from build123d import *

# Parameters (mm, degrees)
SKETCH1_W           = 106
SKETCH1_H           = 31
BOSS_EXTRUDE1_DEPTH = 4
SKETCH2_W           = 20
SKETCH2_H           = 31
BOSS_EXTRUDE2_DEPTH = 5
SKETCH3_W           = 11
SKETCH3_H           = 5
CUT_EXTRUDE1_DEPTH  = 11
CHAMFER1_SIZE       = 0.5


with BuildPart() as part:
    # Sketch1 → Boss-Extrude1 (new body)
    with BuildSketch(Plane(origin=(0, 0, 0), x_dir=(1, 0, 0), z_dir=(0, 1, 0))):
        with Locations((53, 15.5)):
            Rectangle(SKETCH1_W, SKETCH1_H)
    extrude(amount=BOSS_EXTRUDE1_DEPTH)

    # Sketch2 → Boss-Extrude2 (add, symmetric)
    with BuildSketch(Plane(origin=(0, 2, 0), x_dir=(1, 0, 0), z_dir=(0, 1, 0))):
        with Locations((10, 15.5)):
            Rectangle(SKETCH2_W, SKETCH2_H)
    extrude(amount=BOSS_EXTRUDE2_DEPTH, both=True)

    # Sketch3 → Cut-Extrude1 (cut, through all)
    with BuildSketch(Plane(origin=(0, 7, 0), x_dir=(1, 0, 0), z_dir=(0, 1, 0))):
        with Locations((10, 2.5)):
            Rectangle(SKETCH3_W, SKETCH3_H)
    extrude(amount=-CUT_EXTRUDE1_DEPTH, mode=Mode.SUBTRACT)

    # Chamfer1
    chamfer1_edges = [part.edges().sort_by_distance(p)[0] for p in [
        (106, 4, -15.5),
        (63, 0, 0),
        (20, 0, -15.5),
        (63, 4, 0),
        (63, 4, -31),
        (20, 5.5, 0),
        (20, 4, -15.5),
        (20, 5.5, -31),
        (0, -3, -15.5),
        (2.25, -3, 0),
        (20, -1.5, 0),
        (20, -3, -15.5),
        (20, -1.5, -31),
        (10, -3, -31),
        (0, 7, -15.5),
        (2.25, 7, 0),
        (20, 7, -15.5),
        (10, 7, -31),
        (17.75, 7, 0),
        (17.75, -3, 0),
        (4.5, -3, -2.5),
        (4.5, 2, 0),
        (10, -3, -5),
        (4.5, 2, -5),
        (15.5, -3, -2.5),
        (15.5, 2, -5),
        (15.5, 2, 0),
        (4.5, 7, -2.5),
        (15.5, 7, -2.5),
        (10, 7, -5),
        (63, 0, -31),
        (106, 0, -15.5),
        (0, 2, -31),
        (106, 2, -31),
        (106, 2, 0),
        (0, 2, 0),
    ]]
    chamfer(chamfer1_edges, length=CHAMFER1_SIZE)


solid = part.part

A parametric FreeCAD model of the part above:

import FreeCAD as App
import Part
import Sketcher

V = App.Vector


def add_polygon(sketch, points):
    """Adds a closed chain of lines whose ends are joined by coincident constraints."""
    first, n = sketch.GeometryCount, len(points)
    for a, b in zip(points, points[1:] + points[:1]):
        sketch.addGeometry(Part.LineSegment(App.Vector(*a, 0), App.Vector(*b, 0)), False)
    for i in range(n):
        sketch.addConstraint(Sketcher.Constraint("Coincident", first + i, 2, first + (i + 1) % n, 1))

doc = App.newDocument("Part")
params = doc.addObject("Spreadsheet::Sheet", "Params")
for row, (alias, value) in enumerate([
    ("sketch1_width", "106 mm"),
    ("sketch1_height", "31 mm"),
    ("pad1_length", "4 mm"),
    ("sketch2_width", "20 mm"),
    ("sketch2_height", "31 mm"),
    ("pad2_length", "10 mm"),
    ("sketch3_width", "11 mm"),
    ("sketch3_height", "5 mm"),
    ("chamfer_size", "0.5 mm"),
], start=1):
    params.set(f"A{row}", alias)
    params.set(f"B{row}", "=" + value)
    params.setAlias(f"B{row}", alias)

body = doc.addObject("PartDesign::Body", "Body")

# Sketch on XZ plane
sketch1 = body.newObject("Sketcher::SketchObject", "Sketch")
sketch1.AttachmentSupport = (doc.getObject("XZ_Plane"), [""])
sketch1.MapMode = "FlatFace"
add_polygon(sketch1, [(0, -31), (0, 0), (106, 0), (106, -31)])  # lines 0-3
sketch1.addConstraint([
    Sketcher.Constraint("Vertical", 0),
    Sketcher.Constraint("Horizontal", 1),
    Sketcher.Constraint("Vertical", 2),
    Sketcher.Constraint("Horizontal", 3),
    Sketcher.Constraint("Coincident", 0, 2, -1, 1),
    Sketcher.Constraint("DistanceX", 1, 1, 1, 2, 106.0),
    Sketcher.Constraint("DistanceY", 0, 1, 0, 2, 31.0),
])
sketch1.setExpression("Constraints[9]", "Params.sketch1_width")
sketch1.setExpression("Constraints[10]", "Params.sketch1_height")
pad1 = body.newObject("PartDesign::Pad", "Pad")
pad1.Profile = sketch1
pad1.setExpression("Length", "Params.pad1_length")
pad1.Reversed = True

# Sketch on XZ plane
sketch2 = body.newObject("Sketcher::SketchObject", "Sketch001")
sketch2.AttachmentSupport = (doc.getObject("XZ_Plane"), [""])
sketch2.MapMode = "FlatFace"
sketch2.AttachmentOffset = App.Placement(V(0, 0, -2), App.Rotation())
add_polygon(sketch2, [(0, -31), (0, 0), (20, 0), (20, -31)])  # lines 0-3
sketch2.addConstraint([
    Sketcher.Constraint("Vertical", 0),
    Sketcher.Constraint("Horizontal", 1),
    Sketcher.Constraint("Vertical", 2),
    Sketcher.Constraint("Horizontal", 3),
    Sketcher.Constraint("Coincident", 0, 2, -1, 1),
    Sketcher.Constraint("DistanceX", 1, 1, 1, 2, 20.0),
    Sketcher.Constraint("DistanceY", 0, 1, 0, 2, 31.0),
])
sketch2.setExpression("Constraints[9]", "Params.sketch2_width")
sketch2.setExpression("Constraints[10]", "Params.sketch2_height")
pad2 = body.newObject("PartDesign::Pad", "Pad001")
pad2.Profile = sketch2
pad2.setExpression("Length", "Params.pad2_length")
pad2.Midplane = True

# Sketch on XZ plane
sketch3 = body.newObject("Sketcher::SketchObject", "Sketch002")
sketch3.AttachmentSupport = (doc.getObject("XZ_Plane"), [""])
sketch3.MapMode = "FlatFace"
sketch3.AttachmentOffset = App.Placement(V(0, 0, -7), App.Rotation())
add_polygon(sketch3, [(4, -5), (4, 0), (16, 0), (16, -5)])  # lines 0-3
sketch3.addConstraint([
    Sketcher.Constraint("Vertical", 0),
    Sketcher.Constraint("Horizontal", 1),
    Sketcher.Constraint("Vertical", 2),
    Sketcher.Constraint("Horizontal", 3),
    Sketcher.Constraint("PointOnObject", 0, 2, -1),
    Sketcher.Constraint("DistanceX", 1, 1, 1, 2, 11.0),
    Sketcher.Constraint("DistanceY", 0, 1, 0, 2, 5.0),
    Sketcher.Constraint("DistanceX", -1, 1, 0, 2, 4.5),
])
sketch3.setExpression("Constraints[9]", "Params.sketch3_width")
sketch3.setExpression("Constraints[10]", "Params.sketch3_height")
pocket1 = body.newObject("PartDesign::Pocket", "Pocket")
pocket1.Profile = sketch3
pocket1.Type = "ThroughAll"
pocket1.Reversed = True
doc.recompute()

chamfer = body.newObject("PartDesign::Chamfer", "Chamfer")
chamfer.Base = (pocket1, ["Edge1"])
chamfer.UseAllEdges = True
chamfer.setExpression("Size", "Params.chamfer_size")

doc.recompute()
